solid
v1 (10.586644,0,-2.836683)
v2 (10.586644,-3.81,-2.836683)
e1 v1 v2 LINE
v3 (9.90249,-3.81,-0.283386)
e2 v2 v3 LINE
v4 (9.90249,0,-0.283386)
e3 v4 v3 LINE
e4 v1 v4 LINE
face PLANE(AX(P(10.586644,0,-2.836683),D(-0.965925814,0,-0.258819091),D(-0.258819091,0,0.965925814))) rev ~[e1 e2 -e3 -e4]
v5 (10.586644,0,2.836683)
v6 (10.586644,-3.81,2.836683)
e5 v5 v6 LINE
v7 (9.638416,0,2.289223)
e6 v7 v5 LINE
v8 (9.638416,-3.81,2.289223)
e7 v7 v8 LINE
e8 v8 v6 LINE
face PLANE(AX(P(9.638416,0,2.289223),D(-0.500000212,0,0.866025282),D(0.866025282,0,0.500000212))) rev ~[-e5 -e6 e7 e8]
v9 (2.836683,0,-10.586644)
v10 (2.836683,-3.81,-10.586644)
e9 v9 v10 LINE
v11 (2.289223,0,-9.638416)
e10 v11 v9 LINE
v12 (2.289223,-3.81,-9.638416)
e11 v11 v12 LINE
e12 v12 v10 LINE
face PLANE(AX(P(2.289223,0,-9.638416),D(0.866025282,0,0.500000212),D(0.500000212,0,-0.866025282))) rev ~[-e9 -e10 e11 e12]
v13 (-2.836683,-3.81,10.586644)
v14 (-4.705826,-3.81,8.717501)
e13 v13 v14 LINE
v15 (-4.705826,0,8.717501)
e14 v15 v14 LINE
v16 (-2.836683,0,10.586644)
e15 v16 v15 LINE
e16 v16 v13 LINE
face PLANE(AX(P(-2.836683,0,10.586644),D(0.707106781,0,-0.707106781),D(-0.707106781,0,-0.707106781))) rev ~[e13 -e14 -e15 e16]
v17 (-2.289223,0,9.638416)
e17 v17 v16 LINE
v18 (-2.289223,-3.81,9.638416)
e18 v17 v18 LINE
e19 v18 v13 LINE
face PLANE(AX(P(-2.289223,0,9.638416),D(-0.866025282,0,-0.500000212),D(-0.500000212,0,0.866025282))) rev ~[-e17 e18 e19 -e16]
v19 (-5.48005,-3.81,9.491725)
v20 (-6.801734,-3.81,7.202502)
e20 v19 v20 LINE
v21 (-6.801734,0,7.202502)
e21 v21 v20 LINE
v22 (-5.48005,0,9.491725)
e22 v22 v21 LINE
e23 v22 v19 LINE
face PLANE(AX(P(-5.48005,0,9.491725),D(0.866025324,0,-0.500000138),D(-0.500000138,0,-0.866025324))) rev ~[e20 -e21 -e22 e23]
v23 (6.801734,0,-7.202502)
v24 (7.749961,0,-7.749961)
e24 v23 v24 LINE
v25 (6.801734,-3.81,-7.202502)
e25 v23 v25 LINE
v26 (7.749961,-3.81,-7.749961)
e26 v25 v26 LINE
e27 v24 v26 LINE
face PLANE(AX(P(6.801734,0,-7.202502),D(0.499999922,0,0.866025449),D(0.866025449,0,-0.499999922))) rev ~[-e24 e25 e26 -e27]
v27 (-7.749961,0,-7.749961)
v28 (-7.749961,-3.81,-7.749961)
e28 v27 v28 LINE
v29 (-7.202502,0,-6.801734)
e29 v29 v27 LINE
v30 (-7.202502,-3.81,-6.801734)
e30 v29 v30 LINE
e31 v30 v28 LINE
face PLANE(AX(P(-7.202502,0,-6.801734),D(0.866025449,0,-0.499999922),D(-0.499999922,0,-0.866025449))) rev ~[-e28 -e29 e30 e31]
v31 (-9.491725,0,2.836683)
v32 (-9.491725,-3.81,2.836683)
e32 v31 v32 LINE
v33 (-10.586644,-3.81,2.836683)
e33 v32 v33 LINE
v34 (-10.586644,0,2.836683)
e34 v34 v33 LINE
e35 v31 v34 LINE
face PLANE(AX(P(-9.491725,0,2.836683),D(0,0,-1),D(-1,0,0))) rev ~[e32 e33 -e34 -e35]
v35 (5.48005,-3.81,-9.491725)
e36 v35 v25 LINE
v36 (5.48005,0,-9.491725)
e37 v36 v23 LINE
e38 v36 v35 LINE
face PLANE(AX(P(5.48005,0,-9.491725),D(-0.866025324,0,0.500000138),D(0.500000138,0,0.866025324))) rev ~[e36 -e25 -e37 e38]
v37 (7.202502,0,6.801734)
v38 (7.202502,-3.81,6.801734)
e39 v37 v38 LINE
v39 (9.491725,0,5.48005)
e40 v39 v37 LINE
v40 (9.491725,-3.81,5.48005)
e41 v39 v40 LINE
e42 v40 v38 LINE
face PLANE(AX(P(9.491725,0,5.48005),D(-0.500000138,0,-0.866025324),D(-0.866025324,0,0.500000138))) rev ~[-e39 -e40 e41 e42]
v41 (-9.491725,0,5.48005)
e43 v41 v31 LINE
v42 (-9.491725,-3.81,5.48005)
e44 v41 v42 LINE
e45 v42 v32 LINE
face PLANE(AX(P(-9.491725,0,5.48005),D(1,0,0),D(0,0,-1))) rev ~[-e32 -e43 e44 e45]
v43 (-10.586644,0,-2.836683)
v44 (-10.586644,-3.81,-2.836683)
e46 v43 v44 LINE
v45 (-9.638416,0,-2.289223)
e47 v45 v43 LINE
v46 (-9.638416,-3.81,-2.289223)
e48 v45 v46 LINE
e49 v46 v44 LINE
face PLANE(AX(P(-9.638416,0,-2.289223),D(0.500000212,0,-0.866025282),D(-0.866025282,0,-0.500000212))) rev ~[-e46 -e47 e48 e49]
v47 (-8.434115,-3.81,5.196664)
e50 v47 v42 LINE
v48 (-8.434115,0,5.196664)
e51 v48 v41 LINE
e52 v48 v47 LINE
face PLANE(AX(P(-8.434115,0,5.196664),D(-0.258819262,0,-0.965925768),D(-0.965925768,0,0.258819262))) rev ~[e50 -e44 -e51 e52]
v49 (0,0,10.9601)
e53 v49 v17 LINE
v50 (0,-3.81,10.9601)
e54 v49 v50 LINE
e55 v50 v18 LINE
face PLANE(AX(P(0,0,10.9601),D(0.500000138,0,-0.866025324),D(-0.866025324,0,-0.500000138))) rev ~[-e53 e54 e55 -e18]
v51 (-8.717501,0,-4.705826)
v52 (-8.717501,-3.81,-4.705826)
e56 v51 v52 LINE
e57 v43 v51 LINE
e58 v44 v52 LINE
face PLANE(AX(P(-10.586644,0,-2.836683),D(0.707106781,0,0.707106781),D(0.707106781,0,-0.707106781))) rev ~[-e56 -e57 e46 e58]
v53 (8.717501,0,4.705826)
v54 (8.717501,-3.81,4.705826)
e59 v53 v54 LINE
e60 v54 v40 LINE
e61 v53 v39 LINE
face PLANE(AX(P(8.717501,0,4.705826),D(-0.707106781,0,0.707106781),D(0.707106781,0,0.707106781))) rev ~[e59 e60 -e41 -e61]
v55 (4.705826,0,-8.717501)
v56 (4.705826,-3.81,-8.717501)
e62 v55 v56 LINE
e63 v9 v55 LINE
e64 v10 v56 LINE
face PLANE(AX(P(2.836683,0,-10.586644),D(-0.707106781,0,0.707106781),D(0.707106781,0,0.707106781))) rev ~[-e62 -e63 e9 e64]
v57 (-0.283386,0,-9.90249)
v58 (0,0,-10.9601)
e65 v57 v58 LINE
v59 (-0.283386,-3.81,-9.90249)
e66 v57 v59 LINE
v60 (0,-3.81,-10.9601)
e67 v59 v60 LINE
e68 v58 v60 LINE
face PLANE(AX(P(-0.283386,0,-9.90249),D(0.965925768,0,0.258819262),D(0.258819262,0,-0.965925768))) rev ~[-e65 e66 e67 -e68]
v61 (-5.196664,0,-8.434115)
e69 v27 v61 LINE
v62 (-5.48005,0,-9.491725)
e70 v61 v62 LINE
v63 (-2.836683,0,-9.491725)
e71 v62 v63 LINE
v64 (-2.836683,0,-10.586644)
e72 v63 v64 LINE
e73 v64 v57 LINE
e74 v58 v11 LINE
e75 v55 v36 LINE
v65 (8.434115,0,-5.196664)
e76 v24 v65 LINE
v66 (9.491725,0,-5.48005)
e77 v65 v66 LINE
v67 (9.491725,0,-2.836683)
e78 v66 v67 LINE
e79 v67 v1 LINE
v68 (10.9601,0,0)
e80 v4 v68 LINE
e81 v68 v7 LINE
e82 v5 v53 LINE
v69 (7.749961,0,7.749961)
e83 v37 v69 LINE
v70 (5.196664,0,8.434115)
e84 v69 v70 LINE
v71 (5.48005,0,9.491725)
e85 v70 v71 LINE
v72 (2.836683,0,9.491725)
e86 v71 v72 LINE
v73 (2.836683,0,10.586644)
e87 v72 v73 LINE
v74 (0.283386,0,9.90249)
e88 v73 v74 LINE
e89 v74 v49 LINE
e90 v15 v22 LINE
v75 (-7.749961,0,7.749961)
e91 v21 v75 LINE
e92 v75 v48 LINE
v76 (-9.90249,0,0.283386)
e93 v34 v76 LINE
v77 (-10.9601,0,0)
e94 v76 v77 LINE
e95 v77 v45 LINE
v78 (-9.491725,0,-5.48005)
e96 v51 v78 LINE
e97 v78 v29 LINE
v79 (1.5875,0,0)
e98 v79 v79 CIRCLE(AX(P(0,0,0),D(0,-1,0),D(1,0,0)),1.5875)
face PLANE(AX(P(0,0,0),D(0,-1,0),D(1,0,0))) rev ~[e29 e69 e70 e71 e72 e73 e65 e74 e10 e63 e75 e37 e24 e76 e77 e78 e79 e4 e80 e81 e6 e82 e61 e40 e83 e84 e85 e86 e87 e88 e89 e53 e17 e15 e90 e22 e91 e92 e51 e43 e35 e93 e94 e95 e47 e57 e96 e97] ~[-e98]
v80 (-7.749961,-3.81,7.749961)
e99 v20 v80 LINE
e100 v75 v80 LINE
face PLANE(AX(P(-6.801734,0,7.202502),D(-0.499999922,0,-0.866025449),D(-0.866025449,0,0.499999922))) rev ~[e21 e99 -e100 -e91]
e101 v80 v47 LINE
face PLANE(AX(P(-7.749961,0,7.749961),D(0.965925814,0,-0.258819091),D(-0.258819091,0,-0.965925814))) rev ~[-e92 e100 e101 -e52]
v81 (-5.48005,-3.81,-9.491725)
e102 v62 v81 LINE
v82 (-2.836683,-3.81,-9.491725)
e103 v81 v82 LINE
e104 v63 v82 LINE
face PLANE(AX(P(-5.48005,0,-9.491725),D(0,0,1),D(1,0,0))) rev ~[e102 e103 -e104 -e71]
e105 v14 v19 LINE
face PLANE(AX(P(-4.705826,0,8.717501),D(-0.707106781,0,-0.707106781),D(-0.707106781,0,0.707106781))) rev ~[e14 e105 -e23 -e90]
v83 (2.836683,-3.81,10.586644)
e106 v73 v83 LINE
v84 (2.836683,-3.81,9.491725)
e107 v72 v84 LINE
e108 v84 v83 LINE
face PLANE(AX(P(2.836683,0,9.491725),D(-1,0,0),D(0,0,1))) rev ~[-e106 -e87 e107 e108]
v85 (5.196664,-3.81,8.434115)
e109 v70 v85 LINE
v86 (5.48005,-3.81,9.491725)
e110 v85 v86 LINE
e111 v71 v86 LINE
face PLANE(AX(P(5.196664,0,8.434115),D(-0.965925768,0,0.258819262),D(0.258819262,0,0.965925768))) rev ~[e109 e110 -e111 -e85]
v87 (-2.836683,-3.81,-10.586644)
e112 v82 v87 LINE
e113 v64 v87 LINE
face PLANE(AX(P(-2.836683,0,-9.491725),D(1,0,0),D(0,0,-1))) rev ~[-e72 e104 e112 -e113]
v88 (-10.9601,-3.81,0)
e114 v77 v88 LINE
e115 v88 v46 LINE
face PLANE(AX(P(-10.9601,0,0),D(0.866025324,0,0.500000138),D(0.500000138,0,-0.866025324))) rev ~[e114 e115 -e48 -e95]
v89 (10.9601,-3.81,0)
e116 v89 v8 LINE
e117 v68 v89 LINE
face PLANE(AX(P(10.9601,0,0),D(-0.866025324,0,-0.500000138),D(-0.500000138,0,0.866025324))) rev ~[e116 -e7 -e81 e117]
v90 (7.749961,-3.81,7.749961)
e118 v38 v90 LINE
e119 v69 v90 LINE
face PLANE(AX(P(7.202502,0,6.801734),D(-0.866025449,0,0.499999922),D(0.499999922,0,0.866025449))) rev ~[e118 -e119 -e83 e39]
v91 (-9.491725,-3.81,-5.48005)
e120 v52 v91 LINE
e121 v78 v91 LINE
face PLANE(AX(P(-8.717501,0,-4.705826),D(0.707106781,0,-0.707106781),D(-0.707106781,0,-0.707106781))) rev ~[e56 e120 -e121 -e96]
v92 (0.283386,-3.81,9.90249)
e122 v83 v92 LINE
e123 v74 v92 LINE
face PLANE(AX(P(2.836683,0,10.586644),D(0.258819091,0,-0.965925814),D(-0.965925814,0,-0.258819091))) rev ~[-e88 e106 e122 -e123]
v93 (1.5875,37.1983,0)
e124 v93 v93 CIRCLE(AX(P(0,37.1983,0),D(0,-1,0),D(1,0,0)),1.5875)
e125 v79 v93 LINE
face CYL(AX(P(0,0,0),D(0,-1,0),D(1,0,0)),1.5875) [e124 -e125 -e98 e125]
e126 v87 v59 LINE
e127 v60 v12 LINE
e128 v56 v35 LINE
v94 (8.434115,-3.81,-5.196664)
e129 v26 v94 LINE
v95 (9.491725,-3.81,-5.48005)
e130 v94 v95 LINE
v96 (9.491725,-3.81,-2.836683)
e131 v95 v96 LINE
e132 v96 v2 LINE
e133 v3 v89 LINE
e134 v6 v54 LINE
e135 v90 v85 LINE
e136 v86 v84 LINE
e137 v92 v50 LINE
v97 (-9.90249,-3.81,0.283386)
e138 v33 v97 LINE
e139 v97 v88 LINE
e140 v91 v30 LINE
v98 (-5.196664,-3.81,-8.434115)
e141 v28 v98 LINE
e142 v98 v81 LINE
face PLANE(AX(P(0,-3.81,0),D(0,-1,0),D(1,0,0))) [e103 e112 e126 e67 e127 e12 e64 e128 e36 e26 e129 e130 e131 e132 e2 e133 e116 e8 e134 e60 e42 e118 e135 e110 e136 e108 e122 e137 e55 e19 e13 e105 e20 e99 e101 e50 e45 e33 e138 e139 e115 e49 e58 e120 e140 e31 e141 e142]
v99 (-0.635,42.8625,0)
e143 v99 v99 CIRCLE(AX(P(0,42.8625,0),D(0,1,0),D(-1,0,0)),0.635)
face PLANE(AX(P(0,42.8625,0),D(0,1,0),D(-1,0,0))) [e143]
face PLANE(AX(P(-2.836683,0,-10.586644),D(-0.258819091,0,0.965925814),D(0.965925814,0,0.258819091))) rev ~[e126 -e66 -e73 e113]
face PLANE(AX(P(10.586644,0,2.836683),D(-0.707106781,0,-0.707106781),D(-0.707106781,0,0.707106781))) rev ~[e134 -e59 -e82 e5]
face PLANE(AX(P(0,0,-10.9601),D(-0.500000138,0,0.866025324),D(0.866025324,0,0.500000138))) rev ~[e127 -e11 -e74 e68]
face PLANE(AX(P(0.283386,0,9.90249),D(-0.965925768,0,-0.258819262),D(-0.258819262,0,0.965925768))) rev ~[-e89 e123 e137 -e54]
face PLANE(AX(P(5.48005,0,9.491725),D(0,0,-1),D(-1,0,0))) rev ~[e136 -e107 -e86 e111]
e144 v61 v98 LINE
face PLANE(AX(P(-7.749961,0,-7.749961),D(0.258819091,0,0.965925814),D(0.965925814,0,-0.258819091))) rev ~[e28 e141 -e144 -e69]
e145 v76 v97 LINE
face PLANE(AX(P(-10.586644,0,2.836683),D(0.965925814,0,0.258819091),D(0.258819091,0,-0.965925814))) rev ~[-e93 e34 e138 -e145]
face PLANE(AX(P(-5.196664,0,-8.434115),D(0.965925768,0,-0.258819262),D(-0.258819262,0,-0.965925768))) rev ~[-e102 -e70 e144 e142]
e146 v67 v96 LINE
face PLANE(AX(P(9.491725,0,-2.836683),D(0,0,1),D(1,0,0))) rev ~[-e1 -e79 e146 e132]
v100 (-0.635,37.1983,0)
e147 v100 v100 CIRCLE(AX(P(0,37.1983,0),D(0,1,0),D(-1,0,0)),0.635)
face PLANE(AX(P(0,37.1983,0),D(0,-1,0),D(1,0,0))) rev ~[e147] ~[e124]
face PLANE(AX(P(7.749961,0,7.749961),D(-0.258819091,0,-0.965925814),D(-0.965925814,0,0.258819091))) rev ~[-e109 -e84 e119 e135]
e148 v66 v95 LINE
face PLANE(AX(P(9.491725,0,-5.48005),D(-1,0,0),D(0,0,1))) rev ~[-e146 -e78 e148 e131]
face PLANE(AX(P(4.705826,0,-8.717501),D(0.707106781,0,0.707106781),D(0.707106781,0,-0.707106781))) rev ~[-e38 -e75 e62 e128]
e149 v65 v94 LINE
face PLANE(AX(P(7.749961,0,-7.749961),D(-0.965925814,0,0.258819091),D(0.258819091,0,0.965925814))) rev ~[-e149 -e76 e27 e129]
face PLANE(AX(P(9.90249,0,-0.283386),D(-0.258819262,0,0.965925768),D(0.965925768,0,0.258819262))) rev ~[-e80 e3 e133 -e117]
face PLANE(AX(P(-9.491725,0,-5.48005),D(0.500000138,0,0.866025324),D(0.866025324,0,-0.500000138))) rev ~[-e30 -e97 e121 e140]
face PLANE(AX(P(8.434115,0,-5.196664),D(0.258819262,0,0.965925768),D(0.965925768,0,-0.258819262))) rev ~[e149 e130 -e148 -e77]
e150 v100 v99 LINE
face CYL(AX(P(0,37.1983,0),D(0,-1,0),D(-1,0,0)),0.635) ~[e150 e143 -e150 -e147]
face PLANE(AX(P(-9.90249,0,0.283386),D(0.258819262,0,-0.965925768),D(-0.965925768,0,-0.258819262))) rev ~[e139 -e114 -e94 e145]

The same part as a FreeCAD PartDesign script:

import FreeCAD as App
import Part
import Sketcher
from FreeCAD import Vector
Q = App.Units.Quantity

doc = App.newDocument("Part")
body = doc.addObject("PartDesign::Body", "Body")

sketch1 = body.newObject("Sketcher::SketchObject", "Sketch")
sketch1.AttachmentSupport = (doc.getObject("XZ_Plane"), [""])
sketch1.MapMode = "FlatFace"
sketch1.addGeometry([
    Part.LineSegment(Vector(0.283386, 9.90249, 0), Vector(0, 10.9601, 0)),
    Part.LineSegment(Vector(0, 10.9601, 0), Vector(-2.289223, 9.638416, 0)),
    Part.LineSegment(Vector(-2.289223, 9.638416, 0), Vector(-2.836683, 10.586644, 0)),
    Part.LineSegment(Vector(-2.836683, 10.586644, 0), Vector(-4.705826, 8.717501, 0)),
    Part.LineSegment(Vector(-4.705826, 8.717501, 0), Vector(-5.48005, 9.491725, 0)),
    Part.LineSegment(Vector(-5.48005, 9.491725, 0), Vector(-6.801734, 7.202502, 0)),
    Part.LineSegment(Vector(-6.801734, 7.202502, 0), Vector(-7.749961, 7.749961, 0)),
    Part.LineSegment(Vector(-7.749961, 7.749961, 0), Vector(-8.434115, 5.196664, 0)),
    Part.LineSegment(Vector(-8.434115, 5.196664, 0), Vector(-9.491725, 5.48005, 0)),
    Part.LineSegment(Vector(-9.491725, 5.48005, 0), Vector(-9.491725, 2.836683, 0)),
    Part.LineSegment(Vector(-9.491725, 2.836683, 0), Vector(-10.586644, 2.836683, 0)),
    Part.LineSegment(Vector(-10.586644, 2.836683, 0), Vector(-9.90249, 0.283386, 0)),
    Part.LineSegment(Vector(-9.90249, 0.283386, 0), Vector(-10.9601, 0, 0)),
    Part.LineSegment(Vector(-10.9601, 0, 0), Vector(-9.638416, -2.289223, 0)),
    Part.LineSegment(Vector(-9.638416, -2.289223, 0), Vector(-10.586644, -2.836683, 0)),
    Part.LineSegment(Vector(-10.586644, -2.836683, 0), Vector(-8.717501, -4.705826, 0)),
    Part.LineSegment(Vector(-8.717501, -4.705826, 0), Vector(-9.491725, -5.48005, 0)),
    Part.LineSegment(Vector(-9.491725, -5.48005, 0), Vector(-7.202502, -6.801734, 0)),
    Part.LineSegment(Vector(-7.202502, -6.801734, 0), Vector(-7.749961, -7.749961, 0)),
    Part.LineSegment(Vector(-7.749961, -7.749961, 0), Vector(-5.196664, -8.434115, 0)),
    Part.LineSegment(Vector(-5.196664, -8.434115, 0), Vector(-5.48005, -9.491725, 0)),
    Part.LineSegment(Vector(-5.48005, -9.491725, 0), Vector(-2.836683, -9.491725, 0)),
    Part.LineSegment(Vector(-2.836683, -9.491725, 0), Vector(-2.836683, -10.586644, 0)),
    Part.LineSegment(Vector(-2.836683, -10.586644, 0), Vector(-0.283386, -9.90249, 0)),
    Part.LineSegment(Vector(-0.283386, -9.90249, 0), Vector(0, -10.9601, 0)),
    Part.LineSegment(Vector(0, -10.9601, 0), Vector(2.289223, -9.638416, 0)),
    Part.LineSegment(Vector(2.289223, -9.638416, 0), Vector(2.836683, -10.586644, 0)),
    Part.LineSegment(Vector(2.836683, -10.586644, 0), Vector(4.705826, -8.717501, 0)),
    Part.LineSegment(Vector(4.705826, -8.717501, 0), Vector(5.48005, -9.491725, 0)),
    Part.LineSegment(Vector(5.48005, -9.491725, 0), Vector(6.801734, -7.202502, 0)),
    Part.LineSegment(Vector(6.801734, -7.202502, 0), Vector(7.749961, -7.749961, 0)),
    Part.LineSegment(Vector(7.749961, -7.749961, 0), Vector(8.434115, -5.196664, 0)),
    Part.LineSegment(Vector(8.434115, -5.196664, 0), Vector(9.491725, -5.48005, 0)),
    Part.LineSegment(Vector(9.491725, -5.48005, 0), Vector(9.491725, -2.836683, 0)),
    Part.LineSegment(Vector(9.491725, -2.836683, 0), Vector(10.586644, -2.836683, 0)),
    Part.LineSegment(Vector(10.586644, -2.836683, 0), Vector(9.90249, -0.283386, 0)),
    Part.LineSegment(Vector(9.90249, -0.283386, 0), Vector(10.9601, 0, 0)),
    Part.LineSegment(Vector(10.9601, 0, 0), Vector(9.638416, 2.289223, 0)),
    Part.LineSegment(Vector(9.638416, 2.289223, 0), Vector(10.586644, 2.836683, 0)),
    Part.LineSegment(Vector(10.586644, 2.836683, 0), Vector(8.717501, 4.705826, 0)),
    Part.LineSegment(Vector(8.717501, 4.705826, 0), Vector(9.491725, 5.48005, 0)),
    Part.LineSegment(Vector(9.491725, 5.48005, 0), Vector(7.202502, 6.801734, 0)),
    Part.LineSegment(Vector(7.202502, 6.801734, 0), Vector(7.749961, 7.749961, 0)),
    Part.LineSegment(Vector(7.749961, 7.749961, 0), Vector(5.196664, 8.434115, 0)),
    Part.LineSegment(Vector(5.196664, 8.434115, 0), Vector(5.48005, 9.491725, 0)),
    Part.LineSegment(Vector(5.48005, 9.491725, 0), Vector(2.836683, 9.491725, 0)),
    Part.LineSegment(Vector(2.836683, 9.491725, 0), Vector(2.836683, 10.586644, 0)),
    Part.LineSegment(Vector(2.836683, 10.586644, 0), Vector(0.283386, 9.90249, 0)),
], False)
sketch1.addConstraint([
    Sketcher.Constraint("Coincident", 0, 2, 1, 1),
    Sketcher.Constraint("Coincident", 1, 2, 2, 1),
    Sketcher.Constraint("Coincident", 2, 2, 3, 1),
    Sketcher.Constraint("Coincident", 3, 2, 4, 1),
    Sketcher.Constraint("Coincident", 4, 2, 5, 1),
    Sketcher.Constraint("Coincident", 5, 2, 6, 1),
    Sketcher.Constraint("Coincident", 6, 2, 7, 1),
    Sketcher.Constraint("Coincident", 7, 2, 8, 1),
    Sketcher.Constraint("Coincident", 8, 2, 9, 1),
    Sketcher.Constraint("Coincident", 9, 2, 10, 1),
    Sketcher.Constraint("Coincident", 10, 2, 11, 1),
    Sketcher.Constraint("Coincident", 11, 2, 12, 1),
    Sketcher.Constraint("Coincident", 12, 2, 13, 1),
    Sketcher.Constraint("Coincident", 13, 2, 14, 1),
    Sketcher.Constraint("Coincident", 14, 2, 15, 1),
    Sketcher.Constraint("Coincident", 15, 2, 16, 1),
    Sketcher.Constraint("Coincident", 16, 2, 17, 1),
    Sketcher.Constraint("Coincident", 17, 2, 18, 1),
    Sketcher.Constraint("Coincident", 18, 2, 19, 1),
    Sketcher.Constraint("Coincident", 19, 2, 20, 1),
    Sketcher.Constraint("Coincident", 20, 2, 21, 1),
    Sketcher.Constraint("Coincident", 21, 2, 22, 1),
    Sketcher.Constraint("Coincident", 22, 2, 23, 1),
    Sketcher.Constraint("Coincident", 23, 2, 24, 1),
    Sketcher.Constraint("Coincident", 24, 2, 25, 1),
    Sketcher.Constraint("Coincident", 25, 2, 26, 1),
    Sketcher.Constraint("Coincident", 26, 2, 27, 1),
    Sketcher.Constraint("Coincident", 27, 2, 28, 1),
    Sketcher.Constraint("Coincident", 28, 2, 29, 1),
    Sketcher.Constraint("Coincident", 29, 2, 30, 1),
    Sketcher.Constraint("Coincident", 30, 2, 31, 1),
    Sketcher.Constraint("Coincident", 31, 2, 32, 1),
    Sketcher.Constraint("Coincident", 32, 2, 33, 1),
    Sketcher.Constraint("Coincident", 33, 2, 34, 1),
    Sketcher.Constraint("Coincident", 34, 2, 35, 1),
    Sketcher.Constraint("Coincident", 35, 2, 36, 1),
    Sketcher.Constraint("Coincident", 36, 2, 37, 1),
    Sketcher.Constraint("Coincident", 37, 2, 38, 1),
    Sketcher.Constraint("Coincident", 38, 2, 39, 1),
    Sketcher.Constraint("Coincident", 39, 2, 40, 1),
    Sketcher.Constraint("Coincident", 40, 2, 41, 1),
    Sketcher.Constraint("Coincident", 41, 2, 42, 1),
    Sketcher.Constraint("Coincident", 42, 2, 43, 1),
    Sketcher.Constraint("Coincident", 43, 2, 44, 1),
    Sketcher.Constraint("Coincident", 44, 2, 45, 1),
    Sketcher.Constraint("Coincident", 45, 2, 46, 1),
    Sketcher.Constraint("Coincident", 46, 2, 47, 1),
    Sketcher.Constraint("Coincident", 47, 2, 0, 1),
    Sketcher.Constraint("Vertical", 9),
    Sketcher.Constraint("Horizontal", 10),
    Sketcher.Constraint("Horizontal", 21),
    Sketcher.Constraint("Vertical", 22),
    Sketcher.Constraint("Vertical", 33),
    Sketcher.Constraint("Horizontal", 34),
    Sketcher.Constraint("Horizontal", 45),
    Sketcher.Constraint("Vertical", 46),
    Sketcher.Constraint("Symmetric", 0, 2, 24, 2, -1, 1),
    Sketcher.Constraint("Symmetric", 1, 2, 25, 2, -1, 1),
    Sketcher.Constraint("Symmetric", 2, 2, 26, 2, -1, 1),
    Sketcher.Constraint("Symmetric", 3, 2, 27, 2, -1, 1),
    Sketcher.Constraint("Symmetric", 4, 2, 28, 2, -1, 1),
    Sketcher.Constraint("Symmetric", 5, 2, 29, 2, -1, 1),
    Sketcher.Constraint("Symmetric", 6, 2, 30, 2, -1, 1),
    Sketcher.Constraint("Symmetric", 7, 2, 31, 2, -1, 1),
    Sketcher.Constraint("Symmetric", 8, 2, 32, 2, -1, 1),
    Sketcher.Constraint("Symmetric", 10, 2, 34, 2, -1, 1),
    Sketcher.Constraint("Symmetric", 11, 2, 35, 2, -1, 1),
    Sketcher.Constraint("Symmetric", 12, 2, 36, 2, -1, 1),
    Sketcher.Constraint("Symmetric", 13, 2, 37, 2, -1, 1),
    Sketcher.Constraint("Symmetric", 14, 2, 38, 2, -1, 1),
    Sketcher.Constraint("Symmetric", 15, 2, 39, 2, -1, 1),
    Sketcher.Constraint("Symmetric", 16, 2, 40, 2, -1, 1),
    Sketcher.Constraint("Symmetric", 17, 2, 41, 2, -1, 1),
    Sketcher.Constraint("Symmetric", 18, 2, 42, 2, -1, 1),
    Sketcher.Constraint("Symmetric", 19, 2, 43, 2, -1, 1),
    Sketcher.Constraint("Symmetric", 20, 2, 44, 2, -1, 1),
    Sketcher.Constraint("Symmetric", 22, 2, 46, 2, -1, 1),
    Sketcher.Constraint("Symmetric", 23, 2, 47, 2, -1, 1),
    Sketcher.Constraint("Symmetric", 22, 2, 26, 2, -2),
    Sketcher.Constraint("Symmetric", 20, 2, 28, 2, -2),
    Sketcher.Constraint("Symmetric", 18, 2, 30, 2, -2),
    Sketcher.Constraint("Symmetric", 16, 2, 32, 2, -2),
    Sketcher.Constraint("Symmetric", 14, 2, 34, 2, -2),
    Sketcher.Constraint("PointOnObject", 0, 2, -2),
    Sketcher.Constraint("PointOnObject", 12, 2, -1),
    Sketcher.Constraint("Perpendicular", 1, 2),
    Sketcher.Constraint("Perpendicular", 3, 4),
    Sketcher.Constraint("Perpendicular", 5, 6),
    Sketcher.Constraint("Perpendicular", 7, 8),
    Sketcher.Constraint("Parallel", 0, 11),
    Sketcher.Constraint("Perpendicular", 11, 12),
    Sketcher.Constraint("Parallel", 2, 13),
    Sketcher.Constraint("Perpendicular", 13, 14),
    Sketcher.Constraint("Parallel", 4, 15),
    Sketcher.Constraint("Perpendicular", 15, 16),
    Sketcher.Constraint("Parallel", 6, 17),
    Sketcher.Constraint("Perpendicular", 17, 18),
    Sketcher.Constraint("Parallel", 8, 19),
    Sketcher.Constraint("Perpendicular", 19, 20),
    Sketcher.Constraint("Parallel", 12, 23),
    Sketcher.Constraint("Equal", 45, 9),
    Sketcher.Constraint("Equal", 34, 22),
    Sketcher.Constraint("Equal", 0, 2),
    Sketcher.Constraint("Equal", 1, 3),
    Sketcher.Constraint("Equal", 2, 4),
    Sketcher.Constraint("Equal", 3, 5),
    Sketcher.Constraint("Equal", 4, 6),
    Sketcher.Constraint("Equal", 5, 7),
    Sketcher.Constraint("Equal", 6, 8),
    Sketcher.Constraint("Equal", 7, 11),
    Sketcher.Constraint("Equal", 8, 12),
    Sketcher.Constraint("Equal", 15, 17),
    Sketcher.Constraint("Angle", 0, Q("105.000013 deg")),
    Sketcher.Constraint("Angle", 1, Q("-149.999991 deg")),
    Sketcher.Constraint("Angle", 3, Q("-135 deg")),
    Sketcher.Constraint("Angle", 5, Q("-120.000009 deg")),
    Sketcher.Constraint("DistanceY", -1, 1, 0, 2, Q("0.4315 in")),
])
pad1 = body.newObject("PartDesign::Pad", "Pad")
pad1.Profile = sketch1
pad1.Length = Q("0.15 in")

sketch2 = body.newObject("Sketcher::SketchObject", "Sketch001")
sketch2.AttachmentSupport = (doc.getObject("XZ_Plane"), [""])
sketch2.MapMode = "FlatFace"
sketch2.addGeometry(Part.Circle(Vector(0, 0, 0), Vector(0, 0, 1), 1.5875), False)
sketch2.addConstraint([
    Sketcher.Constraint("Coincident", 0, 3, -1, 1),
    Sketcher.Constraint("Diameter", 0, Q("0.125 in")),
])
pad2 = body.newObject("PartDesign::Pad", "Pad001")
pad2.Profile = sketch2
pad2.Length = Q("1.4645 in")
pad2.Reversed = True

sketch3 = body.newObject("Sketcher::SketchObject", "Sketch002")
sketch3.AttachmentSupport = (doc.getObject("XZ_Plane"), [""])
sketch3.MapMode = "FlatFace"
sketch3.AttachmentOffset = App.Placement(Vector(0, 0, -1.4645 * 25.4), App.Rotation())
sketch3.addGeometry(Part.Circle(Vector(0, 0, 0), Vector(0, 0, 1), 0.635), False)
sketch3.addConstraint([
    Sketcher.Constraint("Coincident", 0, 3, -1, 1),
    Sketcher.Constraint("Diameter", 0, Q("0.05 in")),
])
pad3 = body.newObject("PartDesign::Pad", "Pad002")
pad3.Profile = sketch3
pad3.Length = Q("0.223 in")
pad3.Reversed = True

doc.recompute()
